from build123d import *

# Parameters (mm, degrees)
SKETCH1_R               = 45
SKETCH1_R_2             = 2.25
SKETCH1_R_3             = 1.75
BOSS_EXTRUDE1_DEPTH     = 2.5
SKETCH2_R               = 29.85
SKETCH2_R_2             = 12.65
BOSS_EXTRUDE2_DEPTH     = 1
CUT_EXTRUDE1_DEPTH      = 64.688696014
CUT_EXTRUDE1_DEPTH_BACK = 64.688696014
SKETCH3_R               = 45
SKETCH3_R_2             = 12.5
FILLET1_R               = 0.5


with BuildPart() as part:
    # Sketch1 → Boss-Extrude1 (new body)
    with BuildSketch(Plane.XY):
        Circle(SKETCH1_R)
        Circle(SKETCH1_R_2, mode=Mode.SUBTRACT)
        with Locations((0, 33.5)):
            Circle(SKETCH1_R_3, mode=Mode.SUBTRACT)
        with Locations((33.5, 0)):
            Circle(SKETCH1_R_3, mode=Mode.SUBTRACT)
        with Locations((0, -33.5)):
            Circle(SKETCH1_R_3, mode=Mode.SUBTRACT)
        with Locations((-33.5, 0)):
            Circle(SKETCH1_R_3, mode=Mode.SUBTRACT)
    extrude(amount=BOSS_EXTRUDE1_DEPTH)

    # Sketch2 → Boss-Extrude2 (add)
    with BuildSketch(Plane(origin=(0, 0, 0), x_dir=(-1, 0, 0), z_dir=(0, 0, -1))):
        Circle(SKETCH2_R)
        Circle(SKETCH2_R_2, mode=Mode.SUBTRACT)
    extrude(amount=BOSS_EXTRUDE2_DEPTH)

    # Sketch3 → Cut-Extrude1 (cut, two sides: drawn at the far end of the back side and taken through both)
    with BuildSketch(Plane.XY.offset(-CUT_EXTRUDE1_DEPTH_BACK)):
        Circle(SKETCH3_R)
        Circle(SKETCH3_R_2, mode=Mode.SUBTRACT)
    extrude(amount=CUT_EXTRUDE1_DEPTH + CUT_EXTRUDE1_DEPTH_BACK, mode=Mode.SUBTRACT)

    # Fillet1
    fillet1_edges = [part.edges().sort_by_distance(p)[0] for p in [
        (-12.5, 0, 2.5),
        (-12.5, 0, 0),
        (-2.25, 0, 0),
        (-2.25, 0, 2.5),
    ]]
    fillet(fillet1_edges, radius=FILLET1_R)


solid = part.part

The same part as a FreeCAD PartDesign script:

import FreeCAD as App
import Part
import Sketcher
Q = App.Units.Quantity


def edges_at(feature, points):
    """Names of the edges that pass closest to the given points."""
    edges = feature.Shape.Edges
    near = lambda p: min(range(len(edges)), key=lambda i: edges[i].distToShape(Part.Vertex(*p))[0])
    return sorted({f"Edge{near(p) + 1}" for p in points})

doc = App.newDocument("Part")
body = doc.addObject("PartDesign::Body", "Body")

# Sketch on XY plane
sketch1 = doc.addObject("Sketcher::SketchObject", "Sketch")
body.addObject(sketch1)
sketch1.AttachmentSupport = (doc.XY_Plane, [""])
sketch1.MapMode = "FlatFace"
sketch1.addGeometry(Part.Circle(App.Vector(0, 0, 0), App.Vector(0, 0, 1), 45), False)
sketch1.addGeometry(Part.Circle(App.Vector(0, -33.5, 0), App.Vector(0, 0, 1), 1.75), False)
sketch1.addGeometry(Part.Circle(App.Vector(-33.5, 0, 0), App.Vector(0, 0, 1), 1.75), False)
sketch1.addGeometry(Part.Circle(App.Vector(0, 0, 0), App.Vector(0, 0, 1), 2.25), False)
sketch1.addGeometry(Part.Circle(App.Vector(33.5, 0, 0), App.Vector(0, 0, 1), 1.75), False)
sketch1.addGeometry(Part.Circle(App.Vector(0, 33.5, 0), App.Vector(0, 0, 1), 1.75), False)
sketch1.addConstraint(Sketcher.Constraint("Coincident", 0, 3, -1, 1))
sketch1.addConstraint(Sketcher.Constraint("Coincident", 3, 3, -1, 1))
sketch1.addConstraint(Sketcher.Constraint("Equal", 1, 2))
sketch1.addConstraint(Sketcher.Constraint("Equal", 2, 4))
sketch1.addConstraint(Sketcher.Constraint("Equal", 4, 5))
sketch1.addConstraint(Sketcher.Constraint("Symmetric", 2, 3, 4, 3, -1, 1))
sketch1.addConstraint(Sketcher.Constraint("Symmetric", 1, 3, 5, 3, -1, 1))
sketch1.addConstraint(Sketcher.Constraint("PointOnObject", 1, 3, -2))
sketch1.addConstraint(Sketcher.Constraint("PointOnObject", 2, 3, -1))
sketch1.addConstraint(Sketcher.Constraint("Diameter", 0, Q("90 mm")))
sketch1.addConstraint(Sketcher.Constraint("Diameter", 1, Q("3.5 mm")))
sketch1.addConstraint(Sketcher.Constraint("Diameter", 3, Q("4.5 mm")))
sketch1.addConstraint(Sketcher.Constraint("DistanceX", 2, 3, 4, 3, Q("67 mm")))
sketch1.addConstraint(Sketcher.Constraint("DistanceY", 1, 3, 5, 3, Q("67 mm")))
pad1 = doc.addObject("PartDesign::Pad", "Pad")
body.addObject(pad1)
pad1.Profile = sketch1
pad1.Length = 2.5

# Sketch on XY plane
sketch2 = doc.addObject("Sketcher::SketchObject", "Sketch001")
body.addObject(sketch2)
sketch2.AttachmentSupport = (doc.XY_Plane, [""])
sketch2.MapMode = "FlatFace"
sketch2.addGeometry(Part.Circle(App.Vector(0, 0, 0), App.Vector(0, 0, 1), 29.85), False)
sketch2.addGeometry(Part.Circle(App.Vector(0, 0, 0), App.Vector(0, 0, 1), 12.65), False)
sketch2.addConstraint(Sketcher.Constraint("Coincident", 0, 3, -1, 1))
sketch2.addConstraint(Sketcher.Constraint("Coincident", 1, 3, -1, 1))
sketch2.addConstraint(Sketcher.Constraint("Diameter", 0, Q("59.7 mm")))
sketch2.addConstraint(Sketcher.Constraint("Diameter", 1, Q("25.3 mm")))
pad2 = doc.addObject("PartDesign::Pad", "Pad001")
body.addObject(pad2)
pad2.Profile = sketch2
pad2.Length = 1
pad2.Reversed = True

# Sketch on XY plane
sketch3 = doc.addObject("Sketcher::SketchObject", "Sketch002")
body.addObject(sketch3)
sketch3.AttachmentSupport = (doc.XY_Plane, [""])
sketch3.MapMode = "FlatFace"
sketch3.addGeometry(Part.Circle(App.Vector(0, 0, 0), App.Vector(0, 0, 1), 45), False)
sketch3.addGeometry(Part.Circle(App.Vector(0, 0, 0), App.Vector(0, 0, 1), 12.5), False)
sketch3.addConstraint(Sketcher.Constraint("Coincident", 0, 3, -1, 1))
sketch3.addConstraint(Sketcher.Constraint("Coincident", 1, 3, -1, 1))
sketch3.addConstraint(Sketcher.Constraint("Diameter", 0, Q("90 mm")))
sketch3.addConstraint(Sketcher.Constraint("Diameter", 1, Q("25 mm")))
pocket1 = doc.addObject("PartDesign::Pocket", "Pocket")
body.addObject(pocket1)
pocket1.Profile = sketch3
pocket1.Type = "ThroughAll"
pocket1.Midplane = True
doc.recompute()

fillet = doc.addObject("PartDesign::Fillet", "Fillet")
body.addObject(fillet)
fillet.Base = (pocket1, edges_at(pocket1, [
    (-12.5, 0, 2.5),
    (-12.5, 0, 0),
    (-2.25, 0, 0),
    (-2.25, 0, 2.5),
]))
fillet.Radius = 0.5

doc.recompute()
